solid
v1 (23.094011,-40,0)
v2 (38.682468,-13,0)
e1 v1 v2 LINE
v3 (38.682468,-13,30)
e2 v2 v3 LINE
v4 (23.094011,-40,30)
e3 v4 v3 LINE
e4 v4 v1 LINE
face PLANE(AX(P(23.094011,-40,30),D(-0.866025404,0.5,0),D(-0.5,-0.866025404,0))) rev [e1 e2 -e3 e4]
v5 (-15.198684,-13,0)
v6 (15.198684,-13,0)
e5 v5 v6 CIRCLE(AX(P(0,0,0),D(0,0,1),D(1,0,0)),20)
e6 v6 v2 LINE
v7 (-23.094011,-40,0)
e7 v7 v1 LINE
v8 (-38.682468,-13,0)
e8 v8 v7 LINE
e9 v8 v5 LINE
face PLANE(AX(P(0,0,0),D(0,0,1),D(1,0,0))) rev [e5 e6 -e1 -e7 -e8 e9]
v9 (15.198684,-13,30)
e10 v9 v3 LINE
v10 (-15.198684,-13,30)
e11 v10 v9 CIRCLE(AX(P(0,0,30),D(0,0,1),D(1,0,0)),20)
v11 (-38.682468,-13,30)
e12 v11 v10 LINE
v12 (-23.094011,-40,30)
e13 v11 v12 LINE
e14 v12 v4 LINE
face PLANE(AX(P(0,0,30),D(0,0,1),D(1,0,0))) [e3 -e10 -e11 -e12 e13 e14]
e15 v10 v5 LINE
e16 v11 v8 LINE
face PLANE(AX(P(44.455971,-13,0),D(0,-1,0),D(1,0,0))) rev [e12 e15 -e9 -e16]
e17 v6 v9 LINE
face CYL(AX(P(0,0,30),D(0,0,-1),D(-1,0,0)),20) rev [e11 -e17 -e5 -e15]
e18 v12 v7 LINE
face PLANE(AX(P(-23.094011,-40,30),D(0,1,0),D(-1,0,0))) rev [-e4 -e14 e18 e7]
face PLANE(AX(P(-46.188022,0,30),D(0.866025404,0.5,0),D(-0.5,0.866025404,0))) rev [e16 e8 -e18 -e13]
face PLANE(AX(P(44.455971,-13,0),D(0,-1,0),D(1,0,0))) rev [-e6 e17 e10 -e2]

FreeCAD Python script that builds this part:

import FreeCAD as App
import Part
import Sketcher
Q = App.Units.Quantity

doc = App.newDocument("Part")
body = doc.addObject("PartDesign::Body", "Body")

# Sketch on XY plane
sketch1 = doc.addObject("Sketcher::SketchObject", "Sketch")
body.addObject(sketch1)
sketch1.AttachmentSupport = (doc.XY_Plane, [""])
sketch1.MapMode = "FlatFace"
sketch1.addGeometry([
    Part.LineSegment(App.Vector(46, 0, 0), App.Vector(23, 40, 0)),  # 0
    Part.LineSegment(App.Vector(23, 40, 0), App.Vector(-23, 40, 0)),  # 1
    Part.LineSegment(App.Vector(-23, 40, 0), App.Vector(-46, 0, 0)),  # 2
    Part.LineSegment(App.Vector(-46, 0, 0), App.Vector(-23, -40, 0)),  # 3
    Part.LineSegment(App.Vector(-23, -40, 0), App.Vector(23, -40, 0)),  # 4
    Part.LineSegment(App.Vector(23, -40, 0), App.Vector(46, 0, 0)),  # 5
    Part.Circle(App.Vector(0, 0, 0), App.Vector(0, 0, 1), 20),  # 6
], False)
sketch1.addConstraint([
    Sketcher.Constraint("Coincident", 0, 2, 1, 1),
    Sketcher.Constraint("Coincident", 1, 2, 2, 1),
    Sketcher.Constraint("Coincident", 2, 2, 3, 1),
    Sketcher.Constraint("Coincident", 3, 2, 4, 1),
    Sketcher.Constraint("Coincident", 4, 2, 5, 1),
    Sketcher.Constraint("Coincident", 5, 2, 0, 1),
    Sketcher.Constraint("Horizontal", 1),
    Sketcher.Constraint("Horizontal", 4),
    Sketcher.Constraint("Coincident", 6, 3, -1, 1),
    Sketcher.Constraint("Symmetric", 0, 2, 3, 2, -1, 1),
    Sketcher.Constraint("Symmetric", 2, 2, 5, 2, -1, 1),
    Sketcher.Constraint("PointOnObject", 2, 2, -1),
    Sketcher.Constraint("Parallel", 2, 5),
    Sketcher.Constraint("Vertical", 1, 2, 3, 2),
    Sketcher.Constraint("Diameter", 6, 40.0),
    Sketcher.Constraint("Angle", 0, Q("120 deg")),
    Sketcher.Constraint("DistanceY", -1, 1, 0, 2, 40.0),
    Sketcher.Constraint("DistanceX", 1, 2, 1, 1, 46.188022),
])
pad1 = doc.addObject("PartDesign::Pad", "Pad")
body.addObject(pad1)
pad1.Profile = sketch1
pad1.Length = 30

# Sketch on XY plane
sketch2 = doc.addObject("Sketcher::SketchObject", "Sketch001")
body.addObject(sketch2)
sketch2.AttachmentSupport = (doc.XY_Plane, [""])
sketch2.MapMode = "FlatFace"
sketch2.addGeometry([
    Part.LineSegment(App.Vector(-51, 41, 0), App.Vector(-51, 0, 0)),
    Part.LineSegment(App.Vector(-51, 0, 0), App.Vector(52, 0, 0)),
    Part.LineSegment(App.Vector(52, 0, 0), App.Vector(52, 41, 0)),
    Part.LineSegment(App.Vector(52, 41, 0), App.Vector(-51, 41, 0)),
], False)
sketch2.addConstraint([
    Sketcher.Constraint("Coincident", 0, 2, 1, 1),
    Sketcher.Constraint("Coincident", 1, 2, 2, 1),
    Sketcher.Constraint("Coincident", 2, 2, 3, 1),
    Sketcher.Constraint("Coincident", 3, 2, 0, 1),
    Sketcher.Constraint("Vertical", 0),
    Sketcher.Constraint("Horizontal", 1),
    Sketcher.Constraint("Vertical", 2),
    Sketcher.Constraint("Horizontal", 3),
    Sketcher.Constraint("PointOnObject", 0, 2, -1),
    Sketcher.Constraint("DistanceY", 0, 2, 0, 1, 41.168069),
    Sketcher.Constraint("DistanceX", 1, 1, 1, 2, 102.734253),
    Sketcher.Constraint("DistanceX", 0, 2, -1, 1, 50.676565),
])
pocket1 = doc.addObject("PartDesign::Pocket", "Pocket")
body.addObject(pocket1)
pocket1.Profile = sketch2
pocket1.Length = 89
pocket1.Reversed = True

# Sketch on XY plane
sketch3 = doc.addObject("Sketcher::SketchObject", "Sketch002")
body.addObject(sketch3)
sketch3.AttachmentSupport = (doc.XY_Plane, [""])
sketch3.MapMode = "FlatFace"
sketch3.AttachmentOffset = App.Placement(App.Vector(0, 0, 30), App.Rotation())
sketch3.addGeometry([
    Part.LineSegment(App.Vector(-46.7, 0, 0), App.Vector(-46.7, -3, 0)),
    Part.LineSegment(App.Vector(-46.7, -3, 0), App.Vector(46.2, -3, 0)),
    Part.LineSegment(App.Vector(46.2, -3, 0), App.Vector(46.2, 0, 0)),
    Part.LineSegment(App.Vector(46.2, 0, 0), App.Vector(-46.7, 0, 0)),
], False)
sketch3.addConstraint([
    Sketcher.Constraint("Coincident", 0, 2, 1, 1),
    Sketcher.Constraint("Coincident", 1, 2, 2, 1),
    Sketcher.Constraint("Coincident", 2, 2, 3, 1),
    Sketcher.Constraint("Coincident", 3, 2, 0, 1),
    Sketcher.Constraint("Vertical", 0),
    Sketcher.Constraint("Horizontal", 1),
    Sketcher.Constraint("Vertical", 2),
    Sketcher.Constraint("Horizontal", 3),
    Sketcher.Constraint("PointOnObject", 2, 2, -1),
    Sketcher.Constraint("DistanceY", 0, 2, 0, 1, 3.0),
    Sketcher.Constraint("DistanceX", 1, 1, 1, 2, 92.921846),
    Sketcher.Constraint("DistanceX", -1, 1, 1, 2, 46.188022),
])
pocket2 = doc.addObject("PartDesign::Pocket", "Pocket001")
body.addObject(pocket2)
pocket2.Profile = sketch3
pocket2.Length = 89

# Sketch on XY plane
sketch4 = doc.addObject("Sketcher::SketchObject", "Sketch003")
body.addObject(sketch4)
sketch4.AttachmentSupport = (doc.XY_Plane, [""])
sketch4.MapMode = "FlatFace"
sketch4.AttachmentOffset = App.Placement(App.Vector(0, 0, 30), App.Rotation())
sketch4.addGeometry([
    Part.LineSegment(App.Vector(-45, -3, 0), App.Vector(-45, -13, 0)),
    Part.LineSegment(App.Vector(-45, -13, 0), App.Vector(44, -13, 0)),
    Part.LineSegment(App.Vector(44, -13, 0), App.Vector(44, -3, 0)),
    Part.LineSegment(App.Vector(44, -3, 0), App.Vector(-45, -3, 0)),
], False)
sketch4.addConstraint([
    Sketcher.Constraint("Coincident", 0, 2, 1, 1),
    Sketcher.Constraint("Coincident", 1, 2, 2, 1),
    Sketcher.Constraint("Coincident", 2, 2, 3, 1),
    Sketcher.Constraint("Coincident", 3, 2, 0, 1),
    Sketcher.Constraint("Vertical", 0),
    Sketcher.Constraint("Horizontal", 1),
    Sketcher.Constraint("Vertical", 2),
    Sketcher.Constraint("Horizontal", 3),
    Sketcher.Constraint("DistanceY", 0, 2, 0, 1, 10.0),
    Sketcher.Constraint("DistanceY", 0, 2, -1, 1, 13.0),
    Sketcher.Constraint("DistanceX", 1, 1, 1, 2, 89.254797),
    Sketcher.Constraint("DistanceX", -1, 1, 1, 2, 44.455971),
])
pocket3 = doc.addObject("PartDesign::Pocket", "Pocket002")
body.addObject(pocket3)
pocket3.Profile = sketch4
pocket3.Type = "ThroughAll"

doc.recompute()
